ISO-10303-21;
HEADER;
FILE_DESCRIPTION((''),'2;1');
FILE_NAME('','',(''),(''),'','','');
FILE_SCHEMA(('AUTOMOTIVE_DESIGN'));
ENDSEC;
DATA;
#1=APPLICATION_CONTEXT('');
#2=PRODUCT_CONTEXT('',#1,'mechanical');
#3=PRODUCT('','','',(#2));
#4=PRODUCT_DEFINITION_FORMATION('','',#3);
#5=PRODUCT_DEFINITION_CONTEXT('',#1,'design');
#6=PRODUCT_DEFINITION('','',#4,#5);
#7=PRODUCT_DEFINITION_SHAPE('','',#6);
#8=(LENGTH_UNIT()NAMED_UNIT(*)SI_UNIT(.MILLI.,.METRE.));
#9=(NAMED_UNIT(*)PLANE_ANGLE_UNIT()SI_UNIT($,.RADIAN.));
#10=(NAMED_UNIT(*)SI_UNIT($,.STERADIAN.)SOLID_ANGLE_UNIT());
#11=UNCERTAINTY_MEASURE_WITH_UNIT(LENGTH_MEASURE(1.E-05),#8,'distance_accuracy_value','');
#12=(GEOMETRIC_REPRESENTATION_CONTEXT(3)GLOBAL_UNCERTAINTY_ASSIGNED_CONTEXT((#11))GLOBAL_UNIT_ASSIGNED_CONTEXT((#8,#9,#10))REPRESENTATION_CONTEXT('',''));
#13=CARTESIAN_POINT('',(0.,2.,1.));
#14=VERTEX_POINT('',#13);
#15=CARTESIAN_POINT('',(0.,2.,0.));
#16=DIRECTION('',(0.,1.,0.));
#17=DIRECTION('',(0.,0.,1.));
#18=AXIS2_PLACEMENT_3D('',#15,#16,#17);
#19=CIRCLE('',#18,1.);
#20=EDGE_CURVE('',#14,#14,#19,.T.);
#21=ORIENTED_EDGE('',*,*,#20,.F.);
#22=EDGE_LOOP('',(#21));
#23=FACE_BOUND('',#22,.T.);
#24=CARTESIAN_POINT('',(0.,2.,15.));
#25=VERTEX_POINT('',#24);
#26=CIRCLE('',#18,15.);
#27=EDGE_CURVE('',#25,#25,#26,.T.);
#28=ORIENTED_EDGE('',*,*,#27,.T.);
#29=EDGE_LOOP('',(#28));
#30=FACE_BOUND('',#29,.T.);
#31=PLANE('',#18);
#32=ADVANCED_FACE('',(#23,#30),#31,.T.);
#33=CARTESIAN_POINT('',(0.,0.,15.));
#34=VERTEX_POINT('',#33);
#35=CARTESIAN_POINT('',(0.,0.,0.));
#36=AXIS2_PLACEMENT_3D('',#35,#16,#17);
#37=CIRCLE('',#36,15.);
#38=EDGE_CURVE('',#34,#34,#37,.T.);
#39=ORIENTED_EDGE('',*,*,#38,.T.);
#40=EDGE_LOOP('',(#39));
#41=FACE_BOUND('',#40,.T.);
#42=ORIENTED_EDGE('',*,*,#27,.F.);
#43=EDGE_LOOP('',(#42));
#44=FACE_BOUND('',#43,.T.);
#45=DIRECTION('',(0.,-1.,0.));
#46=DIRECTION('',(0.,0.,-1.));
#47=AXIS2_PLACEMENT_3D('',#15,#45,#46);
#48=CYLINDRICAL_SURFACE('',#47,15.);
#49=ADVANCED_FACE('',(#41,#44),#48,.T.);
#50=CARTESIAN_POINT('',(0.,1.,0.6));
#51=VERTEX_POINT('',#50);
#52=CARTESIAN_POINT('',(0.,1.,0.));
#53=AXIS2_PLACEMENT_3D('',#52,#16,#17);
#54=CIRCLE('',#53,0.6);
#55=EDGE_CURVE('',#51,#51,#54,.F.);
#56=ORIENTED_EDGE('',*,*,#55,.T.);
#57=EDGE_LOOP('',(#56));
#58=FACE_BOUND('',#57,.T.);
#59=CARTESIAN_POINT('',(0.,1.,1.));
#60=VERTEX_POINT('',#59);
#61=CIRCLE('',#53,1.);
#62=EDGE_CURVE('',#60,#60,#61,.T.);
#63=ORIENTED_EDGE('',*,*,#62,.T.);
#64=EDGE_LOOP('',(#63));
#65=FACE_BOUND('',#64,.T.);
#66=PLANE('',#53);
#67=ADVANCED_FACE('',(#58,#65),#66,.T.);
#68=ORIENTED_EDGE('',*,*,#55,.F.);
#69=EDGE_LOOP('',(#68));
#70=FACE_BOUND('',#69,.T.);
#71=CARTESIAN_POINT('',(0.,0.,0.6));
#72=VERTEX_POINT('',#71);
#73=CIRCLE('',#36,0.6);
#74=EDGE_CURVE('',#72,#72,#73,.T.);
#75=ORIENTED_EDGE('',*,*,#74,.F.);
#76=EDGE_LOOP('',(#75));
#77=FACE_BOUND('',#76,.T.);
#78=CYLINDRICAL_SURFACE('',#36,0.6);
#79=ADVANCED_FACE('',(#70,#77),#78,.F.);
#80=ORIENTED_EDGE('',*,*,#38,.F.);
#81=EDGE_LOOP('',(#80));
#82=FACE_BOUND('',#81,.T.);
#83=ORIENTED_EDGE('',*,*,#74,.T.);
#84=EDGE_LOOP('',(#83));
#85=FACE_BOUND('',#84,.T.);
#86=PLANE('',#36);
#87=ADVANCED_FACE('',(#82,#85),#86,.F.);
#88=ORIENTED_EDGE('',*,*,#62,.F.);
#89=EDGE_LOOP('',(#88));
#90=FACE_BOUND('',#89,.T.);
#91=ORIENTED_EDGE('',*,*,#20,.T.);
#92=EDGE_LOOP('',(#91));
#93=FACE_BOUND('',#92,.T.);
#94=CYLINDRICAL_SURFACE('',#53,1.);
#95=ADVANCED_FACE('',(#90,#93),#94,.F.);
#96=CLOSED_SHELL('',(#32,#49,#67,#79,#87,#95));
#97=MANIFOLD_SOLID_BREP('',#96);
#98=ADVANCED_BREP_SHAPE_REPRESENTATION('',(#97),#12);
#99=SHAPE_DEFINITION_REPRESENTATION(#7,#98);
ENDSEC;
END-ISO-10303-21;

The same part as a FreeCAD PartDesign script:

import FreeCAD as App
import Part
import Sketcher

doc = App.newDocument("Part")
body = doc.addObject("PartDesign::Body", "Body")

sketch1 = doc.addObject("Sketcher::SketchObject", "Sketch")
body.addObject(sketch1)
sketch1.AttachmentSupport = (doc.XZ_Plane, [""])
sketch1.MapMode = "FlatFace"
sketch1.addGeometry(Part.Circle(App.Vector(0, 0, 0), App.Vector(0, 0, 1), 15), False)
sketch1.addConstraint(Sketcher.Constraint("Coincident", 0, 3, -1, 1))
sketch1.addConstraint(Sketcher.Constraint("Diameter", 0, 30.0))
pad1 = doc.addObject("PartDesign::Pad", "Pad")
body.addObject(pad1)
pad1.Profile = sketch1
pad1.Length = 2
pad1.Reversed = True

sketch2 = doc.addObject("Sketcher::SketchObject", "Sketch001")
body.addObject(sketch2)
sketch2.AttachmentSupport = (doc.XZ_Plane, [""])
sketch2.MapMode = "FlatFace"
sketch2.AttachmentOffset = App.Placement(App.Vector(0, 0, -2), App.Rotation())
sketch2.addGeometry(Part.Circle(App.Vector(0, 0, 0), App.Vector(0, 0, 1), 0.6), False)
sketch2.addConstraint(Sketcher.Constraint("Coincident", 0, 3, -1, 1))
sketch2.addConstraint(Sketcher.Constraint("Diameter", 0, 1.2))
pocket1 = doc.addObject("PartDesign::Pocket", "Pocket")
body.addObject(pocket1)
pocket1.Profile = sketch2
pocket1.Type = "ThroughAll"
pocket1.Reversed = True

sketch3 = doc.addObject("Sketcher::SketchObject", "Sketch002")
body.addObject(sketch3)
sketch3.AttachmentSupport = (doc.XZ_Plane, [""])
sketch3.MapMode = "FlatFace"
sketch3.AttachmentOffset = App.Placement(App.Vector(0, 0, -2), App.Rotation())
sketch3.addGeometry(Part.Circle(App.Vector(0, 0, 0), App.Vector(0, 0, 1), 1), False)
sketch3.addConstraint(Sketcher.Constraint("Coincident", 0, 3, -1, 1))
sketch3.addConstraint(Sketcher.Constraint("Diameter", 0, 2.0))
pocket2 = doc.addObject("PartDesign::Pocket", "Pocket001")
body.addObject(pocket2)
pocket2.Profile = sketch3
pocket2.Length = 1
pocket2.Reversed = True

doc.recompute()
